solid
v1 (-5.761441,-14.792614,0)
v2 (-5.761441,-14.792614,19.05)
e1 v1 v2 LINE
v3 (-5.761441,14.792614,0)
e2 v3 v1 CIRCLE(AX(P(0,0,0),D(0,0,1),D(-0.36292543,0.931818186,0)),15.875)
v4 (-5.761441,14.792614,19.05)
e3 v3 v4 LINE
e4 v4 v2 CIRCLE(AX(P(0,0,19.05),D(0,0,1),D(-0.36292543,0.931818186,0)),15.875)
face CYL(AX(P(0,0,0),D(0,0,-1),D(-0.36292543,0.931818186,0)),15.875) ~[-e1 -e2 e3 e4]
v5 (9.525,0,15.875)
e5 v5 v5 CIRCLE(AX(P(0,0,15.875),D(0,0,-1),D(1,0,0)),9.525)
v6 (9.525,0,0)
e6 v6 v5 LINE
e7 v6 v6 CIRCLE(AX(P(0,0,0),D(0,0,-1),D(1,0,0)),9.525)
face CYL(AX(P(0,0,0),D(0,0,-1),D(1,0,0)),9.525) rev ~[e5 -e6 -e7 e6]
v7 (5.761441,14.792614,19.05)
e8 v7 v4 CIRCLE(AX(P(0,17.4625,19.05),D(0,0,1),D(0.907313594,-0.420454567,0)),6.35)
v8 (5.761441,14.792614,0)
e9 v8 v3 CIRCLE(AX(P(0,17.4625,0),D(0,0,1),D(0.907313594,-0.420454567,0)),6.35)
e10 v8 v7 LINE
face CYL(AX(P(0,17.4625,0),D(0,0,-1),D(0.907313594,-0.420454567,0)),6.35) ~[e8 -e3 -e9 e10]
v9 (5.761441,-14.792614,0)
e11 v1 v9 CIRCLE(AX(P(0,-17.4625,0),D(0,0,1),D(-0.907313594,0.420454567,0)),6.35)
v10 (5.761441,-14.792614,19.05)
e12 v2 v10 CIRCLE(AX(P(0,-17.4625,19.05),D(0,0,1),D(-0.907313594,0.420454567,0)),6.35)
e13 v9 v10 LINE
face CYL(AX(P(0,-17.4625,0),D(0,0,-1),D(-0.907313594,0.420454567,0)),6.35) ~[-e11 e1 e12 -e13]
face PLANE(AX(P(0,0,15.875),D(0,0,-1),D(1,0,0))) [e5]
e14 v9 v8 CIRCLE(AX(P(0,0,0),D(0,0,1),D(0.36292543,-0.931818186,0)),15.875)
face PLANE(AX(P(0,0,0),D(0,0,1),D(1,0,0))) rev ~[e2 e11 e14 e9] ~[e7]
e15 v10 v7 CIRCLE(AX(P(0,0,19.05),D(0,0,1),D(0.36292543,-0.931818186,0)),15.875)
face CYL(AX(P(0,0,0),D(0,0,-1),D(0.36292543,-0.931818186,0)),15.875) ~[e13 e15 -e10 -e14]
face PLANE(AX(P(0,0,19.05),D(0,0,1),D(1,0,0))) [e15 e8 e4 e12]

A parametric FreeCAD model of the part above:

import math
import FreeCAD as App
import Part
import Sketcher

V = App.Vector
Q = App.Units.Quantity

doc = App.newDocument("Part")
body = doc.addObject("PartDesign::Body", "Body")

# Sketch on XY plane
sketch1 = body.newObject("Sketcher::SketchObject", "Sketch")
sketch1.AttachmentSupport = (doc.getObject("XY_Plane"), [""])
sketch1.MapMode = "FlatFace"
sketch1.addGeometry([
    Part.ArcOfCircle(Part.Circle(V(0, -17, 0), V(0, 0, 1), 6), math.radians(155), math.radians(385)),
    Part.ArcOfCircle(Part.Circle(V(0, 0, 0), V(0, 0, 1), 16), math.radians(-69), math.radians(69)),
    Part.ArcOfCircle(Part.Circle(V(0, 17, 0), V(0, 0, 1), 6), math.radians(-25), math.radians(205)),
    Part.ArcOfCircle(Part.Circle(V(0, 0, 0), V(0, 0, 1), 16), math.radians(111), math.radians(249)),
], False)
sketch1.addConstraint([
    Sketcher.Constraint("Coincident", 0, 2, 1, 1),
    Sketcher.Constraint("Coincident", 1, 2, 2, 1),
    Sketcher.Constraint("Coincident", 2, 2, 3, 1),
    Sketcher.Constraint("Coincident", 3, 2, 0, 1),
    Sketcher.Constraint("Coincident", 1, 3, -1, 1),
    Sketcher.Constraint("Coincident", 3, 3, -1, 1),
    Sketcher.Constraint("Equal", 0, 2),
    Sketcher.Constraint("Equal", 1, 3),
    Sketcher.Constraint("Symmetric", 0, 3, 2, 3, -1, 1),
    Sketcher.Constraint("PointOnObject", 0, 3, -2),
    Sketcher.Constraint("Radius", 0, Q("0.25 in")),
    Sketcher.Constraint("Radius", 1, Q("0.625 in")),
    Sketcher.Constraint("DistanceY", 0, 3, -1, 1, Q("0.6875 in")),
])
pad1 = body.newObject("PartDesign::Pad", "Pad")
pad1.Profile = sketch1
pad1.Length = Q("0.75 in")

# Sketch on XY plane
sketch2 = body.newObject("Sketcher::SketchObject", "Sketch001")
sketch2.AttachmentSupport = (doc.getObject("XY_Plane"), [""])
sketch2.MapMode = "FlatFace"
sketch2.addGeometry(Part.Circle(V(0, 0, 0), V(0, 0, 1), 10), False)
sketch2.addConstraint([
    Sketcher.Constraint("Coincident", 0, 3, -1, 1),
    Sketcher.Constraint("Diameter", 0, Q("0.75 in")),
])
pocket1 = body.newObject("PartDesign::Pocket", "Pocket")
pocket1.Profile = sketch2
pocket1.Length = Q("0.625 in")
pocket1.Reversed = True

doc.recompute()
